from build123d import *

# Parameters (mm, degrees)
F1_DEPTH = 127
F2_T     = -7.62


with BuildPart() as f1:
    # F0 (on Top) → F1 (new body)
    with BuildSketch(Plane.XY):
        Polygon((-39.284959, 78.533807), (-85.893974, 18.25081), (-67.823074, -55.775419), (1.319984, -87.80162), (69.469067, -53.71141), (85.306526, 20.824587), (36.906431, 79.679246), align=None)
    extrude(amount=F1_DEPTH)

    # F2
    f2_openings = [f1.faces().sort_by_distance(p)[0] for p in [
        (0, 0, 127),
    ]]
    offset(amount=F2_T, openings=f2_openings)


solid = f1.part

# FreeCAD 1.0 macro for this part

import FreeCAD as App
import Part
import Sketcher
Q = App.Units.Quantity


def faces_at(feature, points):
    """Names of the faces that lie closest to the given points."""
    faces = feature.Shape.Faces
    near = lambda p: min(range(len(faces)), key=lambda i: faces[i].distToShape(Part.Vertex(*p))[0])
    return sorted({f"Face{near(p) + 1}" for p in points})

doc = App.newDocument("Part")
params = doc.addObject("Spreadsheet::Sheet", "Params")
for row, (alias, value) in enumerate([
    ("sketch1_length", "3 in"),
    ("pad1_length", "5 in"),
    ("thickness_wall", "0.3 in"),
], start=1):
    params.set(f"A{row}", alias)
    params.set(f"B{row}", "=" + value)
    params.setAlias(f"B{row}", alias)

body = doc.addObject("PartDesign::Body", "Body")

# Sketch on XY plane
sketch1 = body.newObject("Sketcher::SketchObject", "Sketch")
sketch1.AttachmentSupport = (doc.getObject("XY_Plane"), [""])
sketch1.MapMode = "FlatFace"
sketch1.addGeometry([
    Part.LineSegment(App.Vector(-39, 79, 0), App.Vector(-86, 18, 0)),  # 0
    Part.LineSegment(App.Vector(-86, 18, 0), App.Vector(-68, -56, 0)),  # 1
    Part.LineSegment(App.Vector(-68, -56, 0), App.Vector(1, -88, 0)),  # 2
    Part.LineSegment(App.Vector(1, -88, 0), App.Vector(69, -54, 0)),  # 3
    Part.LineSegment(App.Vector(69, -54, 0), App.Vector(85, 21, 0)),  # 4
    Part.LineSegment(App.Vector(85, 21, 0), App.Vector(37, 80, 0)),  # 5
    Part.LineSegment(App.Vector(37, 80, 0), App.Vector(-39, 79, 0)),  # 6
], False)
sketch1.addConstraint([
    Sketcher.Constraint("Coincident", 0, 2, 1, 1),
    Sketcher.Constraint("Coincident", 1, 2, 2, 1),
    Sketcher.Constraint("Coincident", 2, 2, 3, 1),
    Sketcher.Constraint("Coincident", 3, 2, 4, 1),
    Sketcher.Constraint("Coincident", 4, 2, 5, 1),
    Sketcher.Constraint("Coincident", 5, 2, 6, 1),
    Sketcher.Constraint("Coincident", 6, 2, 0, 1),
    Sketcher.Constraint("Equal", 0, 1),
    Sketcher.Constraint("Equal", 1, 2),
    Sketcher.Constraint("Equal", 2, 3),
    Sketcher.Constraint("Equal", 3, 4),
    Sketcher.Constraint("Equal", 4, 5),
    Sketcher.Constraint("Equal", 5, 6),
    Sketcher.Constraint("Distance", 0, Q("3 in")),
    Sketcher.Constraint("DistanceX", 0, 2, 1, 2, 18.0709),
    Sketcher.Constraint("DistanceY", 2, 2, 1, 2, 32.026201),
    Sketcher.Constraint("DistanceX", 1, 2, 4, 2, 153.1296),
    Sketcher.Constraint("DistanceY", -1, 1, 0, 2, 18.25081),
    Sketcher.Constraint("DistanceY", 3, 2, -1, 1, 53.71141),
    Sketcher.Constraint("DistanceX", -1, 1, 5, 2, 36.906431),
    Sketcher.Constraint("DistanceX", 6, 2, -1, 1, 39.284959),
])
sketch1.setExpression("Constraints[13]", "Params.sketch1_length")
pad1 = body.newObject("PartDesign::Pad", "Pad")
pad1.Profile = sketch1
pad1.setExpression("Length", "Params.pad1_length")
doc.recompute()

thickness = body.newObject("PartDesign::Thickness", "Thickness")
thickness.Base = (pad1, faces_at(pad1, [(-0.294, -4.061, 127)]))
thickness.setExpression("Value", "Params.thickness_wall")
thickness.Reversed = True
thickness.Join = "Arc"

doc.recompute()
